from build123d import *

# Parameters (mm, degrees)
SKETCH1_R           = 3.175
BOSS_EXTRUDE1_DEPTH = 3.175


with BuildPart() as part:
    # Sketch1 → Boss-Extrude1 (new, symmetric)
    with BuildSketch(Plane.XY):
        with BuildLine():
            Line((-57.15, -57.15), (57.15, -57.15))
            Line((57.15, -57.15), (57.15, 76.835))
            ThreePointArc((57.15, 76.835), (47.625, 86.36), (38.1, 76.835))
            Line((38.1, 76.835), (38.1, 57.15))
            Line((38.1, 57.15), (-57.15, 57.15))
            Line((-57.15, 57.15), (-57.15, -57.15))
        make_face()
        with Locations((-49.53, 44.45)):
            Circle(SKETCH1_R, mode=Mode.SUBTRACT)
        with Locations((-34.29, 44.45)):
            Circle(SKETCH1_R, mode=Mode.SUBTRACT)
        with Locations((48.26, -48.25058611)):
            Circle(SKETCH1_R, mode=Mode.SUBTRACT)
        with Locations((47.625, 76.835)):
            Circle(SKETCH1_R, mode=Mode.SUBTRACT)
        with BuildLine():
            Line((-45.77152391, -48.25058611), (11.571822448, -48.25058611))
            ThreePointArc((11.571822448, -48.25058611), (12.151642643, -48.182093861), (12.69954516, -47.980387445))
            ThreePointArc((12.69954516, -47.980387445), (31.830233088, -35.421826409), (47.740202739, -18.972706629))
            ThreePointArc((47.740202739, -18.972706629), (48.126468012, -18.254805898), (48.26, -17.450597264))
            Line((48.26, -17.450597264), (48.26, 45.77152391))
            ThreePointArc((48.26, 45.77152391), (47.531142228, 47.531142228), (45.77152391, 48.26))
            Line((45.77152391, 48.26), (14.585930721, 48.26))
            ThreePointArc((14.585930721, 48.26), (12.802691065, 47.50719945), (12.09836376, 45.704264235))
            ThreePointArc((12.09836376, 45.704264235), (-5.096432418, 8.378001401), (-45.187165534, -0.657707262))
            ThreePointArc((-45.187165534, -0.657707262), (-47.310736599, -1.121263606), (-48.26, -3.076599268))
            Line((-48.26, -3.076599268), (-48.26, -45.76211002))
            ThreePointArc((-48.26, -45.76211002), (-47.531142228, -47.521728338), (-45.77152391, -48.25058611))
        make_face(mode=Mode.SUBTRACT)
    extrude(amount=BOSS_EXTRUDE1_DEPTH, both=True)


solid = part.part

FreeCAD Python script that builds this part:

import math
import FreeCAD as App
import Part
import Sketcher
Q = App.Units.Quantity

doc = App.newDocument("Part")
body = doc.addObject("PartDesign::Body", "Body")

# Sketch on XY plane
sketch1 = doc.addObject("Sketcher::SketchObject", "Sketch")
body.addObject(sketch1)
sketch1.AttachmentSupport = (doc.XY_Plane, [""])
sketch1.MapMode = "FlatFace"
sketch1.addGeometry([
    Part.LineSegment(App.Vector(-57.1, -57.1, 0), App.Vector(57.1, -57.1, 0)),  # 0
    Part.LineSegment(App.Vector(57.1, -57.1, 0), App.Vector(57.1, 76.8, 0)),  # 1
    Part.ArcOfCircle(Part.Circle(App.Vector(47.6, 76.8, 0), App.Vector(0, 0, 1), 9.5), math.radians(0), math.radians(180)),  # 2
    Part.LineSegment(App.Vector(38.1, 76.8, 0), App.Vector(38.1, 57.1, 0)),  # 3
    Part.LineSegment(App.Vector(38.1, 57.1, 0), App.Vector(-57.1, 57.1, 0)),  # 4
    Part.LineSegment(App.Vector(-57.1, 57.1, 0), App.Vector(-57.1, -57.1, 0)),  # 5
    Part.Circle(App.Vector(48.3, -48.3, 0), App.Vector(0, 0, 1), 3.2),  # 6
    Part.LineSegment(App.Vector(11.6, -48.3, 0), App.Vector(-45.8, -48.3, 0)),  # 7
    Part.ArcOfCircle(Part.Circle(App.Vector(-45.8, -45.8, 0), App.Vector(0, 0, 1), 2.5), math.radians(180), math.radians(270)),  # 8
    Part.LineSegment(App.Vector(-48.3, -45.8, 0), App.Vector(-48.3, -3.1, 0)),  # 9
    Part.ArcOfCircle(Part.Circle(App.Vector(-45.8, -3.1, 0), App.Vector(0, 0, 1), 2.5), math.radians(76), math.radians(180)),  # 10
    Part.ArcOfCircle(Part.Circle(App.Vector(-34.3, 44.5, 0), App.Vector(0, 0, 1), 46.4), math.radians(-104), math.radians(2)),  # 11
    Part.ArcOfCircle(Part.Circle(App.Vector(14.6, 45.8, 0), App.Vector(0, 0, 1), 2.5), math.radians(90), math.radians(182)),  # 12
    Part.LineSegment(App.Vector(14.6, 48.3, 0), App.Vector(45.8, 48.3, 0)),  # 13
    Part.ArcOfCircle(Part.Circle(App.Vector(45.8, 45.8, 0), App.Vector(0, 0, 1), 2.5), math.radians(0), math.radians(90)),  # 14
    Part.LineSegment(App.Vector(48.3, 45.8, 0), App.Vector(48.3, -17.5, 0)),  # 15
    Part.ArcOfCircle(Part.Circle(App.Vector(45.8, -17.5, 0), App.Vector(0, 0, 1), 2.5), math.radians(-38), math.radians(0)),  # 16
    Part.ArcOfCircle(Part.Circle(App.Vector(-34.3, 44.5, 0), App.Vector(0, 0, 1), 103.7), math.radians(-63), math.radians(-38)),  # 17
    Part.ArcOfCircle(Part.Circle(App.Vector(11.6, -45.8, 0), App.Vector(0, 0, 1), 2.5), math.radians(-90), math.radians(-63)),  # 18
    Part.Circle(App.Vector(-49.5, 44.5, 0), App.Vector(0, 0, 1), 3.2),  # 19
    Part.Circle(App.Vector(-34.3, 44.5, 0), App.Vector(0, 0, 1), 3.2),  # 20
    Part.Circle(App.Vector(47.6, 76.8, 0), App.Vector(0, 0, 1), 3.2),  # 21
], False)
sketch1.addConstraint([
    Sketcher.Constraint("Coincident", 0, 2, 1, 1),
    Sketcher.Constraint("Tangent", 1, 2, 2, 1),
    Sketcher.Constraint("Tangent", 2, 2, 3, 1),
    Sketcher.Constraint("Coincident", 3, 2, 4, 1),
    Sketcher.Constraint("Coincident", 4, 2, 5, 1),
    Sketcher.Constraint("Coincident", 5, 2, 0, 1),
    Sketcher.Constraint("Tangent", 7, 2, 8, 2),
    Sketcher.Constraint("Tangent", 8, 1, 9, 1),
    Sketcher.Constraint("Tangent", 9, 2, 10, 2),
    Sketcher.Constraint("Tangent", 10, 1, 11, 1),
    Sketcher.Constraint("Tangent", 11, 2, 12, 2),
    Sketcher.Constraint("Tangent", 12, 1, 13, 1),
    Sketcher.Constraint("Tangent", 13, 2, 14, 2),
    Sketcher.Constraint("Tangent", 14, 1, 15, 1),
    Sketcher.Constraint("Tangent", 15, 2, 16, 2),
    Sketcher.Constraint("Tangent", 16, 1, 17, 2),
    Sketcher.Constraint("Tangent", 17, 1, 18, 2),
    Sketcher.Constraint("Tangent", 18, 1, 7, 1),
    Sketcher.Constraint("Horizontal", 0),
    Sketcher.Constraint("Vertical", 1),
    Sketcher.Constraint("Vertical", 3),
    Sketcher.Constraint("Horizontal", 4),
    Sketcher.Constraint("Vertical", 5),
    Sketcher.Constraint("Horizontal", 7),
    Sketcher.Constraint("Vertical", 9),
    Sketcher.Constraint("Horizontal", 13),
    Sketcher.Constraint("Vertical", 15),
    Sketcher.Constraint("Coincident", 17, 3, 11, 3),
    Sketcher.Constraint("Coincident", 20, 3, 11, 3),
    Sketcher.Constraint("Coincident", 21, 3, 2, 3),
    Sketcher.Constraint("Equal", 8, 10),
    Sketcher.Constraint("Equal", 10, 12),
    Sketcher.Constraint("Equal", 12, 14),
    Sketcher.Constraint("Equal", 14, 16),
    Sketcher.Constraint("Equal", 16, 18),
    Sketcher.Constraint("Equal", 6, 19),
    Sketcher.Constraint("Equal", 19, 20),
    Sketcher.Constraint("Equal", 20, 21),
    Sketcher.Constraint("Symmetric", 0, 2, 4, 2, -1, 1),
    Sketcher.Constraint("Horizontal", 17, 3, 19, 3),
    Sketcher.Constraint("Horizontal", 6, 3, 7, 2),
    Sketcher.Constraint("Vertical", 6, 3, 14, 1),
    Sketcher.Constraint("Equal", 0, 5),
    Sketcher.Constraint("Diameter", 6, Q("0.25 in")),
    Sketcher.Constraint("DistanceX", 0, 1, 0, 2, Q("4.5 in")),
    Sketcher.Constraint("Radius", 2, Q("0.375 in")),
    Sketcher.Constraint("DistanceY", 5, 2, 19, 3, Q("4 in")),
    Sketcher.Constraint("DistanceX", -1, 1, 6, 3, Q("1.9 in")),
    Sketcher.Constraint("DistanceX", 8, 1, -1, 1, Q("1.9 in")),
    Sketcher.Constraint("DistanceY", -1, 1, 12, 1, Q("1.9 in")),
    Sketcher.Constraint("DistanceX", 19, 3, 17, 3, Q("0.6 in")),
    Sketcher.Constraint("DistanceX", 4, 2, 19, 3, Q("0.3 in")),
    Sketcher.Constraint("DistanceY", 1, 1, 1, 2, Q("5.275 in")),
    Sketcher.Constraint("Radius", 17, 103.688928),
    Sketcher.Constraint("Radius", 8, 2.488476),
    Sketcher.Constraint("Radius", 11, 46.405317),
    Sketcher.Constraint("DistanceY", 9, 1, 9, 2, 42.685511),
])
pad1 = doc.addObject("PartDesign::Pad", "Pad")
body.addObject(pad1)
pad1.Profile = sketch1
pad1.Length = Q("0.25 in")
pad1.Midplane = True

doc.recompute()
